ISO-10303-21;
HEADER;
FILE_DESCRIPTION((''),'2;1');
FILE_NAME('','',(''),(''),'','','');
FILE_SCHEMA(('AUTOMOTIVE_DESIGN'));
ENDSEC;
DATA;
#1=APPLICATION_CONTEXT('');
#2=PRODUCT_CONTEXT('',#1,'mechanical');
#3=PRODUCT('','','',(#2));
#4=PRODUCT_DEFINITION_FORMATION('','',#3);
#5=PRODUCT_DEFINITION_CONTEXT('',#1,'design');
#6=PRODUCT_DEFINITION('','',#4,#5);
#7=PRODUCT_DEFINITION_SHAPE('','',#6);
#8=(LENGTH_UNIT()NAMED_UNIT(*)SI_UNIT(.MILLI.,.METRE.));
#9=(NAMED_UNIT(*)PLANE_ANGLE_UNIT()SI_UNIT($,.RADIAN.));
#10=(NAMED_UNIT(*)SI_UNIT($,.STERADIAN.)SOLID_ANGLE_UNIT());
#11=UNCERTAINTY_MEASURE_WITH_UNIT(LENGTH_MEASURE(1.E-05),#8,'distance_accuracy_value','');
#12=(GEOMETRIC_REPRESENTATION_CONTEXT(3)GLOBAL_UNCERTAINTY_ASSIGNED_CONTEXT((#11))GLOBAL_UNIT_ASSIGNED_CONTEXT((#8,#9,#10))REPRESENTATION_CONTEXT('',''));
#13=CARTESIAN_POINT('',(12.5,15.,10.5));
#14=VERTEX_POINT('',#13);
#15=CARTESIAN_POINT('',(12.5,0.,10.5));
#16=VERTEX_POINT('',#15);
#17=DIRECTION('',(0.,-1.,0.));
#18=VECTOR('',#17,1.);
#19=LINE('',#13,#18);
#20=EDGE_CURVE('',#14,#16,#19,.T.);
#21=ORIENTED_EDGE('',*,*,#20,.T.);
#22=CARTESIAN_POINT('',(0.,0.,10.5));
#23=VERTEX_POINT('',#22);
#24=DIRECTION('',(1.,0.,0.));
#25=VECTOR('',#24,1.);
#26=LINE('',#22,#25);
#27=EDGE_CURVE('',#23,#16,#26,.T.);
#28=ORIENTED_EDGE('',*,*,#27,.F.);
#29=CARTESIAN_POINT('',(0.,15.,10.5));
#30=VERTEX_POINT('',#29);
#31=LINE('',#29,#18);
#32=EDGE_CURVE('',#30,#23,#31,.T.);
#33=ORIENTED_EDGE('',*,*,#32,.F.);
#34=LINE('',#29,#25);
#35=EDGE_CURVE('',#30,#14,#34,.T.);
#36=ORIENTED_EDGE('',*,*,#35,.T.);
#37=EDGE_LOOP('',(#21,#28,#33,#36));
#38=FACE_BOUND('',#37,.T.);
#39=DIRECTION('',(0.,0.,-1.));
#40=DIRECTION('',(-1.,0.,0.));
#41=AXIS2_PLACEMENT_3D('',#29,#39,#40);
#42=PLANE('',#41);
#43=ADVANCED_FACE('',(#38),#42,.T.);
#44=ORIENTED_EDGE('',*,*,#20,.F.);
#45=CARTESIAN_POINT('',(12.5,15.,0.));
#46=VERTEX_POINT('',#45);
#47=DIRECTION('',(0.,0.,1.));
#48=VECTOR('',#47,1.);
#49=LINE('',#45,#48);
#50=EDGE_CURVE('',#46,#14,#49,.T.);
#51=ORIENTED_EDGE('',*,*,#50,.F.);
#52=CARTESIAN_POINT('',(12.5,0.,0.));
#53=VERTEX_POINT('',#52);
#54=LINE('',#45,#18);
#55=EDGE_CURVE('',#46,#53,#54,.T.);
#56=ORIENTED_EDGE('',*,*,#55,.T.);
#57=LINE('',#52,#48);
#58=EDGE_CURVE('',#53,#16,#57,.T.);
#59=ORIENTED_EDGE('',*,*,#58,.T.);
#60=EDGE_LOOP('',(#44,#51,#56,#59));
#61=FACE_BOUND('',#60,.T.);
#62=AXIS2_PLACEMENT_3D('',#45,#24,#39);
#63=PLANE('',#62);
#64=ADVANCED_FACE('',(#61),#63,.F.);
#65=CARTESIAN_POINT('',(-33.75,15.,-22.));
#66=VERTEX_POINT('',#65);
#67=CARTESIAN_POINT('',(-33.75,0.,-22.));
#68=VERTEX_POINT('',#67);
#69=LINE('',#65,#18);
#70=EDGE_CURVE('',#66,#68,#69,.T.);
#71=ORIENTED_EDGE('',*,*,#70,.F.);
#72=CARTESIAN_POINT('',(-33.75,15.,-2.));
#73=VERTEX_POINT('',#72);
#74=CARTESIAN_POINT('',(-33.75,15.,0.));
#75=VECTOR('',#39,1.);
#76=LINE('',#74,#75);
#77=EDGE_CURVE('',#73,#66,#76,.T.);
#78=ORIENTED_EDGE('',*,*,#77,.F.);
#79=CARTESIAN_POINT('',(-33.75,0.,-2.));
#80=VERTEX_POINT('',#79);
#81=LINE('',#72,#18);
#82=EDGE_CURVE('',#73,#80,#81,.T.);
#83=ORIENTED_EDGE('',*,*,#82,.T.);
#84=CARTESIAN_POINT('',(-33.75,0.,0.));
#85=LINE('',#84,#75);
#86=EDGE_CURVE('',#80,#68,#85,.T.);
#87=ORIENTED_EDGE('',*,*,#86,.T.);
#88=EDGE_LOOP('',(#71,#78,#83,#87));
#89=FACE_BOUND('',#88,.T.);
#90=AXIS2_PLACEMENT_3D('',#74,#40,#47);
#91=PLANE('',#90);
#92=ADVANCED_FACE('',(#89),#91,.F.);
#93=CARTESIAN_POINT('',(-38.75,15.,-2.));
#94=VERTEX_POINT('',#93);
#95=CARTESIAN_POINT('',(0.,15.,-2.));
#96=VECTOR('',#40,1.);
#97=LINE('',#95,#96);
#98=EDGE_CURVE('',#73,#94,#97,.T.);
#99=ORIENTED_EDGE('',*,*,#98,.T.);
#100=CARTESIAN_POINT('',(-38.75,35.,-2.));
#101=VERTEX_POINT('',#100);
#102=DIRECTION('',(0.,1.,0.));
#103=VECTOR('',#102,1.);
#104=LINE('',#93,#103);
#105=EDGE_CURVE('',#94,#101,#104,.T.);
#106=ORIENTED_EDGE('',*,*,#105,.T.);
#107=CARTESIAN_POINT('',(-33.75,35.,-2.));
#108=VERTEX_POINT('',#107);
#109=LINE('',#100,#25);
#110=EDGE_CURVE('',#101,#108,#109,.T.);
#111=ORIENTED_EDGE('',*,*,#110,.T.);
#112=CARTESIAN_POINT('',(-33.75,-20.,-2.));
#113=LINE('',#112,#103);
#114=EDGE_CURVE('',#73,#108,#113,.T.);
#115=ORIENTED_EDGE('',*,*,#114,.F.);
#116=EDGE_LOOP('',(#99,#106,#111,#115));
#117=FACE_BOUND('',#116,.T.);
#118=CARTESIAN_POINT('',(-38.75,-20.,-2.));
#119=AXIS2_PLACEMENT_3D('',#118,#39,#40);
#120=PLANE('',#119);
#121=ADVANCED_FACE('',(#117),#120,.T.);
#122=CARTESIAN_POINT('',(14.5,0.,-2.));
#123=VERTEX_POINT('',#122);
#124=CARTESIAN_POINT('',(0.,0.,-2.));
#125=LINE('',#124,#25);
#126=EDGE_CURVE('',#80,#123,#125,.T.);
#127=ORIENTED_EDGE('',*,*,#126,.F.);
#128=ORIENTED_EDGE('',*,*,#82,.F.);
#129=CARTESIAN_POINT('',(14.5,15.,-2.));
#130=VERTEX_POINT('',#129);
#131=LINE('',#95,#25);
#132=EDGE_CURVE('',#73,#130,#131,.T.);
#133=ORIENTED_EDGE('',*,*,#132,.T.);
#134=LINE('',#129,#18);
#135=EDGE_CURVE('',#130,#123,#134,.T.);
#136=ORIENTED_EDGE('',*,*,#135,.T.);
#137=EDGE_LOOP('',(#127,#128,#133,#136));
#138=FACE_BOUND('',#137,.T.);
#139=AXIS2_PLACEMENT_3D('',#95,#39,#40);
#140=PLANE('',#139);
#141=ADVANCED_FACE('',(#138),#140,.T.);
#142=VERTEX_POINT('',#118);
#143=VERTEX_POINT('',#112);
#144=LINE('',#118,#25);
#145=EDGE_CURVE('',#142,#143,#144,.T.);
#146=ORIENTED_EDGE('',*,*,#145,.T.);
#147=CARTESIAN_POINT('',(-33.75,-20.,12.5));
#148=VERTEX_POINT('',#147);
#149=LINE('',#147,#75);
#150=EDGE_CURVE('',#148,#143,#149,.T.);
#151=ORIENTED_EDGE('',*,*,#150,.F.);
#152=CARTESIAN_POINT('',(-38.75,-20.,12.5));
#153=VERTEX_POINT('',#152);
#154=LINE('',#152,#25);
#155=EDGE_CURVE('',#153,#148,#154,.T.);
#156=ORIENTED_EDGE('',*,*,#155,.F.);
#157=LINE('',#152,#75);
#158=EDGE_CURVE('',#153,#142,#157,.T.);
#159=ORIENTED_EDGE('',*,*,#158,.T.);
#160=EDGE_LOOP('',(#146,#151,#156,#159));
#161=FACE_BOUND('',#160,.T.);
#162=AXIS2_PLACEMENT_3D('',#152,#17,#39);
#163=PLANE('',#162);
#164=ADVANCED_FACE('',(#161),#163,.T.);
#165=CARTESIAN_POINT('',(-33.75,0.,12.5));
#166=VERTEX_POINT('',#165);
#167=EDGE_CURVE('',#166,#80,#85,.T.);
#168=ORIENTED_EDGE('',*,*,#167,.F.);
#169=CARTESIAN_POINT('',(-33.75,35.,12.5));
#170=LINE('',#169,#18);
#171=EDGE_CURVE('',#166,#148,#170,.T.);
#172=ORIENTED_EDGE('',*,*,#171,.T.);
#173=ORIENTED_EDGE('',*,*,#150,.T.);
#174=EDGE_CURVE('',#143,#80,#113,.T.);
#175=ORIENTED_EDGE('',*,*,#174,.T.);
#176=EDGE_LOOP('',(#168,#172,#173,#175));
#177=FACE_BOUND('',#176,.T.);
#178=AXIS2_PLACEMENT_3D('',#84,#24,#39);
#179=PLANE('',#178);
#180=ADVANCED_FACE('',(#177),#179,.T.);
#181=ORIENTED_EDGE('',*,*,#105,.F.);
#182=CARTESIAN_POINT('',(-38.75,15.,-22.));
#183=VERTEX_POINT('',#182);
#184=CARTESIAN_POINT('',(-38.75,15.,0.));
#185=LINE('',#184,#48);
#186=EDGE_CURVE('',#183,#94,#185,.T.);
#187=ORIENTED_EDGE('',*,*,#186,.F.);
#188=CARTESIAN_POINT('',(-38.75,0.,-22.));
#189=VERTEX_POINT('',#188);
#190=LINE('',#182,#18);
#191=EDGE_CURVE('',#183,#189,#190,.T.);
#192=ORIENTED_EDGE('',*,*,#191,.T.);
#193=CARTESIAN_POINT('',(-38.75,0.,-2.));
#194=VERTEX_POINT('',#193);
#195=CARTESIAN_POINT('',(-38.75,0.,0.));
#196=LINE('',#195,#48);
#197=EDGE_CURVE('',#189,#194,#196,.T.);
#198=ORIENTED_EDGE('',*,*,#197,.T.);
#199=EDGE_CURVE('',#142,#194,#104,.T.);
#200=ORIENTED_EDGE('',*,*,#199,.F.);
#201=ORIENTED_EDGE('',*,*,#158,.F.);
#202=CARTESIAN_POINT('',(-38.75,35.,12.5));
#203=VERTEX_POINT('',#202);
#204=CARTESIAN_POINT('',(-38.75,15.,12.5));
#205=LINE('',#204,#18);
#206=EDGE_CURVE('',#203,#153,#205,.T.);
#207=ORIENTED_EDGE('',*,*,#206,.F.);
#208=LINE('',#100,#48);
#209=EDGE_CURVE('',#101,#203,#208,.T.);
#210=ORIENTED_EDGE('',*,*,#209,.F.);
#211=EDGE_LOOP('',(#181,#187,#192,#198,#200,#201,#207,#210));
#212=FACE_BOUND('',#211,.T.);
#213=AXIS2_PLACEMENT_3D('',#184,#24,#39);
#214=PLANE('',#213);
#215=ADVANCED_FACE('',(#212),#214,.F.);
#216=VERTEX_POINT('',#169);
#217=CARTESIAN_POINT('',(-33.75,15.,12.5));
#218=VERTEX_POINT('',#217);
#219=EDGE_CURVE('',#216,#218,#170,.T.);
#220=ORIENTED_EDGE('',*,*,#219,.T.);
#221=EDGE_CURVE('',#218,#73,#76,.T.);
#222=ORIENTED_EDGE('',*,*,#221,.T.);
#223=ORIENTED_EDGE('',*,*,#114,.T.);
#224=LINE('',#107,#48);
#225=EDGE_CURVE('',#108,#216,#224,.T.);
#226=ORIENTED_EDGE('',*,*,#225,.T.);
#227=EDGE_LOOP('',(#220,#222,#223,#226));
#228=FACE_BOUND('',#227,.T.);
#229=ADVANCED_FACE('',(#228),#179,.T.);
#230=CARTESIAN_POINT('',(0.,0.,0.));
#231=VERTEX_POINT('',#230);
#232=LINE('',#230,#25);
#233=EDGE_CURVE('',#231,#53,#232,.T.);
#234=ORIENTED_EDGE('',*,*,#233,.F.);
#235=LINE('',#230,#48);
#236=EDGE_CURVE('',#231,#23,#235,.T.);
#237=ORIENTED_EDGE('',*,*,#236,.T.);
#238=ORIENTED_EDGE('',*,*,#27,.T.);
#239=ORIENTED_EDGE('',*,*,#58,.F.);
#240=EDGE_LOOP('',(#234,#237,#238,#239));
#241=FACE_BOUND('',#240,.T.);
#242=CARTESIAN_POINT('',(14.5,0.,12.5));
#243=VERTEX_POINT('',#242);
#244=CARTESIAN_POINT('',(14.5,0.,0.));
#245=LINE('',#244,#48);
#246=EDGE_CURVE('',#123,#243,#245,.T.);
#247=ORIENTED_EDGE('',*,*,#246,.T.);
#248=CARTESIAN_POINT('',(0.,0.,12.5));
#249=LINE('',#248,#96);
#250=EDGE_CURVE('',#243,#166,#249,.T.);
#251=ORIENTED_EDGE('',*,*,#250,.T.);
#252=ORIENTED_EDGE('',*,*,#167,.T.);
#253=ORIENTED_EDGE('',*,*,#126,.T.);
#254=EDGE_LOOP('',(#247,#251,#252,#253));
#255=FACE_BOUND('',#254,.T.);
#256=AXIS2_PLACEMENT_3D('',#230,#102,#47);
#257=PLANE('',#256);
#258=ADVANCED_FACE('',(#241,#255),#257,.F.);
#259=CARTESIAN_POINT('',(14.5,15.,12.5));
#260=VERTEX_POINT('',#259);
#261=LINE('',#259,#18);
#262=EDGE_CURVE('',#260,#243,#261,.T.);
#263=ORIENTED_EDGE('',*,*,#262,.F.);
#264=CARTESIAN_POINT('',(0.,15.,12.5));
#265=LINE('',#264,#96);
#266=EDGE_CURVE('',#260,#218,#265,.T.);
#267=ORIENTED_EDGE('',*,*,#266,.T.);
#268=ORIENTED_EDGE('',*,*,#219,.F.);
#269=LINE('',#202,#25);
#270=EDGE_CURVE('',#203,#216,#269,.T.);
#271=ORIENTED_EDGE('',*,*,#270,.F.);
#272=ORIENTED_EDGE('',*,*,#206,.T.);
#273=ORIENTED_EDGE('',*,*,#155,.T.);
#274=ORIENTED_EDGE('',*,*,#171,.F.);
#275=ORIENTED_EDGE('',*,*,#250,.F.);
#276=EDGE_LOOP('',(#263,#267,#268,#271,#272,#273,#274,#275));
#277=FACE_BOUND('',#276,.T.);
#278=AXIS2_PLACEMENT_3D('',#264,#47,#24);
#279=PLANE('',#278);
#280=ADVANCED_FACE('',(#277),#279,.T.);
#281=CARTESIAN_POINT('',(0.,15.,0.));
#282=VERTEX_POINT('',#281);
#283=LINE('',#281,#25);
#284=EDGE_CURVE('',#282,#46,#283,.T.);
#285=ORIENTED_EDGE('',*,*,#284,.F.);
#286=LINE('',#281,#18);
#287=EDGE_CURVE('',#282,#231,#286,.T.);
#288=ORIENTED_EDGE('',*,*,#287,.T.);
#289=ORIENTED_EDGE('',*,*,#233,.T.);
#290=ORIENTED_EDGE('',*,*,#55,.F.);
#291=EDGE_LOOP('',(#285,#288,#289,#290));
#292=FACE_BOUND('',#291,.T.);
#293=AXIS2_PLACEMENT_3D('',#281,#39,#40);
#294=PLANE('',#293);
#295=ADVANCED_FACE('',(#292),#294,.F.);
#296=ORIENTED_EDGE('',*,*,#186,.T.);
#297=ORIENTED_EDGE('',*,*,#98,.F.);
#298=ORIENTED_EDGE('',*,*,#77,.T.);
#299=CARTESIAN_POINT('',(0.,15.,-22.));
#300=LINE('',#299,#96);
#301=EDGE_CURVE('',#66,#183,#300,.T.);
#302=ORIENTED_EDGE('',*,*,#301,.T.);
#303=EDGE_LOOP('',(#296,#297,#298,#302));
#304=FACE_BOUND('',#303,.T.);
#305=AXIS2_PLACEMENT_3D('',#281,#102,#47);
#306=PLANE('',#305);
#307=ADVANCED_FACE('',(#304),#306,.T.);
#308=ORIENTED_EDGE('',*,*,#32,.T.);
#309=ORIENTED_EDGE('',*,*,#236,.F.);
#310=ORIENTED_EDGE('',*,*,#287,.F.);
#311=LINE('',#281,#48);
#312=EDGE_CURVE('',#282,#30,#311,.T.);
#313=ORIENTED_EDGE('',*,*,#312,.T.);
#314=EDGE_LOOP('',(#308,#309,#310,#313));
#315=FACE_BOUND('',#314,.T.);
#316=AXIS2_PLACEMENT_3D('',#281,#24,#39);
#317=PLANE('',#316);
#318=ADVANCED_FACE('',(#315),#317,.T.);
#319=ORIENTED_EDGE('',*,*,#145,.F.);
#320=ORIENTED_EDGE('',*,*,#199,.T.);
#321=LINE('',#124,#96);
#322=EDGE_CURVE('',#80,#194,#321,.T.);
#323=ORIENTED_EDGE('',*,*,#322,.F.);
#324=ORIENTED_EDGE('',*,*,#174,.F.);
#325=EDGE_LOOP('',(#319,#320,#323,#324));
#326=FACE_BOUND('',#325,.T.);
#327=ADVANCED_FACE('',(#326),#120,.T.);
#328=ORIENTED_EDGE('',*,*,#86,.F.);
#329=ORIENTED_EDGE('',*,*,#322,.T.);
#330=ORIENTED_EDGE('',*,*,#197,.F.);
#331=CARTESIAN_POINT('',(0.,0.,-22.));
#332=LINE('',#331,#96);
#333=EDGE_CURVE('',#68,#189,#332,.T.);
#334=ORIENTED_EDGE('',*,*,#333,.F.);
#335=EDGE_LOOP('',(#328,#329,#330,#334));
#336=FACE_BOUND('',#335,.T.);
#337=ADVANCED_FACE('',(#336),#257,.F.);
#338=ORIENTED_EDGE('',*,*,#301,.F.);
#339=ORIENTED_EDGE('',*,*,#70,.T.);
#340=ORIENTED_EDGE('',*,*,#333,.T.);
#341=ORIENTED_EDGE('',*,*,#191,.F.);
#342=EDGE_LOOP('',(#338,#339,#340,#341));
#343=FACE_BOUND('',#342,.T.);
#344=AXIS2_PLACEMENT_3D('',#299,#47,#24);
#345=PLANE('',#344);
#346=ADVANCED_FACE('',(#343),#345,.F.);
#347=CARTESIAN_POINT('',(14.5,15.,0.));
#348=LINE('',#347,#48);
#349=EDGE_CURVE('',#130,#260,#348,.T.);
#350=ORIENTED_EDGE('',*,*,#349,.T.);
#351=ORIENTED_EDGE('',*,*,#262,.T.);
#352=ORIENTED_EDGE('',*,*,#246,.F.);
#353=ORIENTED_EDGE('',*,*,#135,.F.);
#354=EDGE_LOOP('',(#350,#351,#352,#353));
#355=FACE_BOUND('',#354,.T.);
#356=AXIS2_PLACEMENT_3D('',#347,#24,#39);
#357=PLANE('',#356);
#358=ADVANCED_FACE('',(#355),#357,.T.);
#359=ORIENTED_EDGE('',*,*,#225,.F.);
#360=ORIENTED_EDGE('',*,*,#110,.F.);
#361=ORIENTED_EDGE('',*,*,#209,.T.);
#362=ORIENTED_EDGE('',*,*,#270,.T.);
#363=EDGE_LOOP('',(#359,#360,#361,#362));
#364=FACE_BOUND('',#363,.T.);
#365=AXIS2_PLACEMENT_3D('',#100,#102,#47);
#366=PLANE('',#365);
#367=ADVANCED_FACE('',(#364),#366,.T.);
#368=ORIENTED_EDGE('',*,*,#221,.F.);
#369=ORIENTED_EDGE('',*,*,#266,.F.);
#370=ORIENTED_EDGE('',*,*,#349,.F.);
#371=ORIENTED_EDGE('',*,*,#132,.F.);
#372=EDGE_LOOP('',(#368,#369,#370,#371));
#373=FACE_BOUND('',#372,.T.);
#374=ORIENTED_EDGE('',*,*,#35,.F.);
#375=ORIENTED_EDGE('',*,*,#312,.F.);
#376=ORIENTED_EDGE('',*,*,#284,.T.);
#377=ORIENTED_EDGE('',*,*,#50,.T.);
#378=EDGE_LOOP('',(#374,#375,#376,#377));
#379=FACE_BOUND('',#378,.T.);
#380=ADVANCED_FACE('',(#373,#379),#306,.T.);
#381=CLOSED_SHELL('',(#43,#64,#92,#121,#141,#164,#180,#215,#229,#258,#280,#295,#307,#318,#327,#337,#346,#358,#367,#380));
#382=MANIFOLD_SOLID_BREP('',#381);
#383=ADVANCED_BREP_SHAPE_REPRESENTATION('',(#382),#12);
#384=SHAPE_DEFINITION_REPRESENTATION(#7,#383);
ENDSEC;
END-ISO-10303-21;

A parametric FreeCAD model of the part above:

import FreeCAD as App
import Part
import Sketcher

V = App.Vector
Q = App.Units.Quantity


def add_polygon(sketch, points):
    """Adds a closed chain of lines whose ends are joined by coincident constraints."""
    first, n = sketch.GeometryCount, len(points)
    for a, b in zip(points, points[1:] + points[:1]):
        sketch.addGeometry(Part.LineSegment(App.Vector(*a, 0), App.Vector(*b, 0)), False)
    for i in range(n):
        sketch.addConstraint(Sketcher.Constraint("Coincident", first + i, 2, first + (i + 1) % n, 1))

doc = App.newDocument("Part")
body = doc.addObject("PartDesign::Body", "Body")

# Sketch on XZ plane
sketch1 = doc.addObject("Sketcher::SketchObject", "Sketch")
body.addObject(sketch1)
sketch1.AttachmentSupport = (doc.XZ_Plane, [""])
sketch1.MapMode = "FlatFace"
add_polygon(sketch1, [(14, 12), (14, -2), (-34, -2), (-34, -22), (-39, -22), (-39, 12)])  # lines 0-5
add_polygon(sketch1, [(12, 10), (0, 10), (0, 0), (12, 0)])  # lines 6-9
sketch1.addConstraint([
    Sketcher.Constraint("Vertical", 0),
    Sketcher.Constraint("Horizontal", 1),
    Sketcher.Constraint("Vertical", 2),
    Sketcher.Constraint("Horizontal", 3),
    Sketcher.Constraint("Vertical", 4),
    Sketcher.Constraint("Horizontal", 5),
    Sketcher.Constraint("Horizontal", 6),
    Sketcher.Constraint("Vertical", 7),
    Sketcher.Constraint("Horizontal", 8),
    Sketcher.Constraint("Vertical", 9),
    Sketcher.Constraint("Coincident", 7, 2, -1, 1),
    Sketcher.Constraint("DistanceX", 3, 2, 3, 1, Q("5 mm")),
    Sketcher.Constraint("DistanceY", 2, 2, 2, 1, Q("20 mm")),
    Sketcher.Constraint("DistanceX", 6, 2, 6, 1, Q("12.5 mm")),
    Sketcher.Constraint("DistanceY", 0, 2, 0, 1, Q("14.5 mm")),
    Sketcher.Constraint("DistanceY", 7, 2, 7, 1, Q("10.5 mm")),
    Sketcher.Constraint("DistanceY", 0, 2, -1, 1, Q("2 mm")),
    Sketcher.Constraint("DistanceX", 8, 2, 0, 2, Q("2 mm")),
    Sketcher.Constraint("DistanceX", 1, 2, 1, 1, Q("48.25 mm")),
])
pad1 = doc.addObject("PartDesign::Pad", "Pad")
body.addObject(pad1)
pad1.Profile = sketch1
pad1.Length = 15
pad1.Reversed = True

# Sketch on YZ plane
sketch2 = doc.addObject("Sketcher::SketchObject", "Sketch001")
body.addObject(sketch2)
sketch2.AttachmentSupport = (doc.YZ_Plane, [""])
sketch2.MapMode = "FlatFace"
sketch2.AttachmentOffset = App.Placement(V(0, 0, -33.75), App.Rotation())
add_polygon(sketch2, [(35, -2), (35, 12), (-20, 12), (-20, -2)])  # lines 0-3
sketch2.addConstraint([
    Sketcher.Constraint("Vertical", 0),
    Sketcher.Constraint("Horizontal", 1),
    Sketcher.Constraint("Vertical", 2),
    Sketcher.Constraint("Horizontal", 3),
    Sketcher.Constraint("DistanceX", 1, 2, 1, 1, Q("55 mm")),
    Sketcher.Constraint("DistanceY", 0, 1, 0, 2, Q("14.5 mm")),
    Sketcher.Constraint("DistanceX", -1, 1, 0, 2, Q("35 mm")),
    Sketcher.Constraint("DistanceY", 2, 2, -1, 1, Q("2 mm")),
])
pad2 = doc.addObject("PartDesign::Pad", "Pad001")
body.addObject(pad2)
pad2.Profile = sketch2
pad2.Length = 5
pad2.Reversed = True

doc.recompute()
